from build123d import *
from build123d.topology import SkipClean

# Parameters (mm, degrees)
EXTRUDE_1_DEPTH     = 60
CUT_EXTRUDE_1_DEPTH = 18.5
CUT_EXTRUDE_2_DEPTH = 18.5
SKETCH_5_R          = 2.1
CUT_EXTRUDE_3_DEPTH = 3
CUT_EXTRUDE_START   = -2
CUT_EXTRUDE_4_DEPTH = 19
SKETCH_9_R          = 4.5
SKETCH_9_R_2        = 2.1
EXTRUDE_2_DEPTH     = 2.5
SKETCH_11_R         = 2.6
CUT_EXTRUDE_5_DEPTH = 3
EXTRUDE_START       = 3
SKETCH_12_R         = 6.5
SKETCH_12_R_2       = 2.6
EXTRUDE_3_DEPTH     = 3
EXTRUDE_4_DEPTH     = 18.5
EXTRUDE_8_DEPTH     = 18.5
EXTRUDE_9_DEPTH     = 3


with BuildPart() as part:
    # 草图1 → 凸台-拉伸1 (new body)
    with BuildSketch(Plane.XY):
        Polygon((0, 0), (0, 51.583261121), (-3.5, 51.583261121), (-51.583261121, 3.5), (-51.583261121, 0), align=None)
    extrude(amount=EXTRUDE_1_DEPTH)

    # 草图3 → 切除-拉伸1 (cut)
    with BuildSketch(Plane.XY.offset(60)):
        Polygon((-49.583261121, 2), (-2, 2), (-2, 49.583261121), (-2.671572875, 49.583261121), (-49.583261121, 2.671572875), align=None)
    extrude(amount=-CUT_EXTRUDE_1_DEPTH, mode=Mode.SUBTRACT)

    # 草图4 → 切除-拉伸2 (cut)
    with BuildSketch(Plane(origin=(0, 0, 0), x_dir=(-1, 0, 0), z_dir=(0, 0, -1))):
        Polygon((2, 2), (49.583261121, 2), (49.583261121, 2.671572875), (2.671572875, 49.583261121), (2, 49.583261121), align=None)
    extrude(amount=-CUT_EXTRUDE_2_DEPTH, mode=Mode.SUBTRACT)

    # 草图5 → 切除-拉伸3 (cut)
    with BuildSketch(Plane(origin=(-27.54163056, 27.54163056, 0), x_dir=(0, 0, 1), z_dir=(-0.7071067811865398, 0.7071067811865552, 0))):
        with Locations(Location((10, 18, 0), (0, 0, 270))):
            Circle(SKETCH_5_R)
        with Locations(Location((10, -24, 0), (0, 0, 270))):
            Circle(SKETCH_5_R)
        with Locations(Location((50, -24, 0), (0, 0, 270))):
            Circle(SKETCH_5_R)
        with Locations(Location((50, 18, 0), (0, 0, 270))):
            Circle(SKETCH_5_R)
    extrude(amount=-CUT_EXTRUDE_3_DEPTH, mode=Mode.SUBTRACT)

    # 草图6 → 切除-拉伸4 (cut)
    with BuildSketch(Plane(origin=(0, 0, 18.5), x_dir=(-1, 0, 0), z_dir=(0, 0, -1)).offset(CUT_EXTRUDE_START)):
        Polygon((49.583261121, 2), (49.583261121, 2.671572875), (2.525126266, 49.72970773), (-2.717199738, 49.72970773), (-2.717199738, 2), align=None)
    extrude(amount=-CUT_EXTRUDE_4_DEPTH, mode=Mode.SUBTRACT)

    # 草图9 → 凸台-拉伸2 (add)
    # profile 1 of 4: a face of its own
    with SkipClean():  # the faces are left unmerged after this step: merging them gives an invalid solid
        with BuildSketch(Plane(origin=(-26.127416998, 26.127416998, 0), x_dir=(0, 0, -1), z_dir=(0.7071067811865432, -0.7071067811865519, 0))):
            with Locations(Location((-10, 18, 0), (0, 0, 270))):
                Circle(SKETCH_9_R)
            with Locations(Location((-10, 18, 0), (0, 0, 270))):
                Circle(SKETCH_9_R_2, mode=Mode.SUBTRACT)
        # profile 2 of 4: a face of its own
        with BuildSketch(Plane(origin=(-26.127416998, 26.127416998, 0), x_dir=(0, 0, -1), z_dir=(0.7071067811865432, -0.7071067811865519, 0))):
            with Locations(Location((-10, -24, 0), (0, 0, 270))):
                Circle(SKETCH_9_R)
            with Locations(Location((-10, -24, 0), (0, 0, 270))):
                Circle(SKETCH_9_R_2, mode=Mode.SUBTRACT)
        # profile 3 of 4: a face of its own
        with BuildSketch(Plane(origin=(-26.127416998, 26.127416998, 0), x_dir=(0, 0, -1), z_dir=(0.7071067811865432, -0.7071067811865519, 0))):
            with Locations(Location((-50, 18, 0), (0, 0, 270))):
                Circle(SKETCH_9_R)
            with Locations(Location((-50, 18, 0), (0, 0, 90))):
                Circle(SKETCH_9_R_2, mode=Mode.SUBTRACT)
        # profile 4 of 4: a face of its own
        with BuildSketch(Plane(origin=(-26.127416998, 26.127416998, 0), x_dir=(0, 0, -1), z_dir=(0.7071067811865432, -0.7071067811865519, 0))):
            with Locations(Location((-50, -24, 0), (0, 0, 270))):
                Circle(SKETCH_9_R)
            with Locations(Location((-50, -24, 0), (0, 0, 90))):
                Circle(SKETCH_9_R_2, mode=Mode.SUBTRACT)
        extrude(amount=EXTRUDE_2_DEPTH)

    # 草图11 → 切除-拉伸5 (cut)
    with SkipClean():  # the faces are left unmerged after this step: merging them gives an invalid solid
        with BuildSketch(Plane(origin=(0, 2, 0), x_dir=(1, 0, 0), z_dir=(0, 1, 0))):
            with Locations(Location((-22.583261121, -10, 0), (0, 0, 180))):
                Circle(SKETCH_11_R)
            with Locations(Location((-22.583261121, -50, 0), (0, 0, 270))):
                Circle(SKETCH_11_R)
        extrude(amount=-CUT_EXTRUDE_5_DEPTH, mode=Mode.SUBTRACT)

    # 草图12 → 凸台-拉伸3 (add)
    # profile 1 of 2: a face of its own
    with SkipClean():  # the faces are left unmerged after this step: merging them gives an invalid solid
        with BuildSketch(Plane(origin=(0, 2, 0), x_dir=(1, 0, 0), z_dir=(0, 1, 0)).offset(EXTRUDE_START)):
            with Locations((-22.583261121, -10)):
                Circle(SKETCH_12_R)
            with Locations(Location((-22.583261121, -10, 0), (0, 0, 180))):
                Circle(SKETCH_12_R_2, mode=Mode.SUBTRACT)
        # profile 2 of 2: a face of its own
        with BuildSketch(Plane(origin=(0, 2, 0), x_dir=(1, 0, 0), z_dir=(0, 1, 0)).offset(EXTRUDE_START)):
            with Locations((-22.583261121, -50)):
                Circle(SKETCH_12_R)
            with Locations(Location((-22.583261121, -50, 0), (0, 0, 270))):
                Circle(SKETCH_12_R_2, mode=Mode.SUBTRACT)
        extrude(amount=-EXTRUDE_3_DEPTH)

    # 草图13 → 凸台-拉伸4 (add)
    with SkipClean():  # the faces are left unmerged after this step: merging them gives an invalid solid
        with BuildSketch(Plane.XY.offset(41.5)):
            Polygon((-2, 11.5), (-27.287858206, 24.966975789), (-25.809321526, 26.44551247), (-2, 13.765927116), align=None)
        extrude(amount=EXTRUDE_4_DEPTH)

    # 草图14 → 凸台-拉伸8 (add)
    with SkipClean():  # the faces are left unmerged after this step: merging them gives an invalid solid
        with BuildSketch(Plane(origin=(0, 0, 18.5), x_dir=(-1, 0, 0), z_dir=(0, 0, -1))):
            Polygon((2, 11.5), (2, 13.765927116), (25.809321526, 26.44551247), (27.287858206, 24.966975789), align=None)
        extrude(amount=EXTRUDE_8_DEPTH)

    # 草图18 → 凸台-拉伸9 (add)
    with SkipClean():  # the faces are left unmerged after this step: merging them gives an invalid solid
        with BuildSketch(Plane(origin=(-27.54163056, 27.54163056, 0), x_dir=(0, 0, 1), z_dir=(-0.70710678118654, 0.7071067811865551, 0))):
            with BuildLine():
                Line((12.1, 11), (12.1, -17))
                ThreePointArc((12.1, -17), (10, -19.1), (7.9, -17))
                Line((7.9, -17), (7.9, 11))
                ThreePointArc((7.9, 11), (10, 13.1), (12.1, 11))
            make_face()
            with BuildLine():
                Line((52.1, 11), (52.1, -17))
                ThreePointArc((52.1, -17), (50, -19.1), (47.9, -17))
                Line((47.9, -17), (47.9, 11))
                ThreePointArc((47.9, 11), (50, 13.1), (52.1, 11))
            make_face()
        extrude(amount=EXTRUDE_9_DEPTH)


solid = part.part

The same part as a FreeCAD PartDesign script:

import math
import FreeCAD as App
import Part
import Sketcher

V = App.Vector
Q = App.Units.Quantity


def add_polygon(sketch, points):
    """Adds a closed chain of lines whose ends are joined by coincident constraints."""
    first, n = sketch.GeometryCount, len(points)
    for a, b in zip(points, points[1:] + points[:1]):
        sketch.addGeometry(Part.LineSegment(App.Vector(*a, 0), App.Vector(*b, 0)), False)
    for i in range(n):
        sketch.addConstraint(Sketcher.Constraint("Coincident", first + i, 2, first + (i + 1) % n, 1))

doc = App.newDocument("Part")
body = doc.addObject("PartDesign::Body", "Body")

sketch1 = body.newObject("Sketcher::SketchObject", "Sketch")
sketch1.AttachmentSupport = (doc.getObject("XY_Plane"), [""])
sketch1.MapMode = "FlatFace"
add_polygon(sketch1, [(0, 0), (0, 51.6), (-3.5, 51.6), (-51.6, 3.5), (-51.6, 0)])
sketch1.addConstraint(Sketcher.Constraint("Vertical", 0))
sketch1.addConstraint(Sketcher.Constraint("Horizontal", 1))
sketch1.addConstraint(Sketcher.Constraint("Vertical", 3))
sketch1.addConstraint(Sketcher.Constraint("Horizontal", 4))
sketch1.addConstraint(Sketcher.Constraint("Coincident", 4, 2, -1, 1))
sketch1.addConstraint(Sketcher.Constraint("Equal", 4, 0))
sketch1.addConstraint(Sketcher.Constraint("Equal", 1, 3))
sketch1.addConstraint(Sketcher.Constraint("Distance", 2, 68.0))
sketch1.addConstraint(Sketcher.Constraint("DistanceX", 1, 2, 1, 1, 3.5))
pad1 = body.newObject("PartDesign::Pad", "Pad")
pad1.Profile = sketch1
pad1.Length = 60

sketch2 = body.newObject("Sketcher::SketchObject", "Sketch001")
sketch2.AttachmentSupport = (doc.getObject("XY_Plane"), [""])
sketch2.MapMode = "FlatFace"
sketch2.AttachmentOffset = App.Placement(V(0, 0, 60), App.Rotation())
add_polygon(sketch2, [(-49.6, 2), (-2, 2), (-2, 49.6), (-2.7, 49.6), (-49.6, 2.7)])
sketch2.addConstraint(Sketcher.Constraint("Horizontal", 0))
sketch2.addConstraint(Sketcher.Constraint("Vertical", 1))
sketch2.addConstraint(Sketcher.Constraint("Horizontal", 2))
sketch2.addConstraint(Sketcher.Constraint("Vertical", 4))
sketch2.addConstraint(Sketcher.Constraint("Equal", 0, 1))
sketch2.addConstraint(Sketcher.Constraint("Equal", 2, 4))
sketch2.addConstraint(Sketcher.Constraint("DistanceX", 0, 2, -1, 1, 2.0))
sketch2.addConstraint(Sketcher.Constraint("DistanceY", -1, 1, 0, 2, 2.0))
sketch2.addConstraint(Sketcher.Constraint("DistanceX", 0, 1, 0, 2, 47.583261))
sketch2.addConstraint(Sketcher.Constraint("DistanceX", 2, 2, 2, 1, 0.671573))
pocket1 = body.newObject("PartDesign::Pocket", "Pocket")
pocket1.Profile = sketch2
pocket1.Length = 18.5

sketch3 = body.newObject("Sketcher::SketchObject", "Sketch002")
sketch3.AttachmentSupport = (doc.getObject("XY_Plane"), [""])
sketch3.MapMode = "FlatFace"
add_polygon(sketch3, [(-2, 2), (-49.6, 2), (-49.6, 2.7), (-2.7, 49.6), (-2, 49.6)])
sketch3.addConstraint(Sketcher.Constraint("Horizontal", 0))
sketch3.addConstraint(Sketcher.Constraint("Vertical", 1))
sketch3.addConstraint(Sketcher.Constraint("Horizontal", 3))
sketch3.addConstraint(Sketcher.Constraint("Vertical", 4))
sketch3.addConstraint(Sketcher.Constraint("Equal", 3, 1))
sketch3.addConstraint(Sketcher.Constraint("Equal", 0, 4))
sketch3.addConstraint(Sketcher.Constraint("DistanceY", -1, 1, 0, 2, 2.0))
sketch3.addConstraint(Sketcher.Constraint("DistanceX", 3, 2, -1, 1, 2.0))
sketch3.addConstraint(Sketcher.Constraint("DistanceX", 0, 2, 0, 1, 47.583261))
sketch3.addConstraint(Sketcher.Constraint("DistanceX", 3, 1, 3, 2, 0.671573))
pocket2 = body.newObject("PartDesign::Pocket", "Pocket001")
pocket2.Profile = sketch3
pocket2.Length = 18.5
pocket2.Reversed = True

sketch4 = body.newObject("Sketcher::SketchObject", "Sketch003")
sketch4.Placement = App.Placement(V(-27.541631, 27.541631, 0), App.Rotation(V(0, 0, 1), V(0.707106781, 0.707106781, 0), V(-0.707106781, 0.707106781, 0), "ZXY"))
sketch4.addGeometry(Part.Circle(V(10, 18, 0), V(0, 0, 1), 2.1), False)
sketch4.addGeometry(Part.Circle(V(10, -24, 0), V(0, 0, 1), 2.1), False)
sketch4.addGeometry(Part.Circle(V(50, -24, 0), V(0, 0, 1), 2.1), False)
sketch4.addGeometry(Part.Circle(V(50, 18, 0), V(0, 0, 1), 2.1), False)
sketch4.addConstraint(Sketcher.Constraint("Equal", 0, 1))
sketch4.addConstraint(Sketcher.Constraint("Equal", 1, 2))
sketch4.addConstraint(Sketcher.Constraint("Equal", 2, 3))
sketch4.addConstraint(Sketcher.Constraint("Horizontal", 1, 3, 2, 3))
sketch4.addConstraint(Sketcher.Constraint("Horizontal", 0, 3, 3, 3))
sketch4.addConstraint(Sketcher.Constraint("Vertical", 0, 3, 1, 3))
sketch4.addConstraint(Sketcher.Constraint("Vertical", 2, 3, 3, 3))
sketch4.addConstraint(Sketcher.Constraint("Diameter", 0, 4.2))
sketch4.addConstraint(Sketcher.Constraint("DistanceX", -1, 1, 0, 3, 10.0))
sketch4.addConstraint(Sketcher.Constraint("DistanceY", -1, 1, 0, 3, 18.0))
sketch4.addConstraint(Sketcher.Constraint("DistanceY", 1, 3, -1, 1, 24.0))
sketch4.addConstraint(Sketcher.Constraint("DistanceX", -1, 1, 2, 3, 50.0))
pocket3 = body.newObject("PartDesign::Pocket", "Pocket002")
pocket3.Profile = sketch4
pocket3.Length = 3

sketch5 = body.newObject("Sketcher::SketchObject", "Sketch004")
sketch5.AttachmentSupport = (doc.getObject("XY_Plane"), [""])
sketch5.MapMode = "FlatFace"
sketch5.AttachmentOffset = App.Placement(V(0, 0, 20.5), App.Rotation())
add_polygon(sketch5, [(-49.6, 2), (-49.6, 2.7), (-2.5, 49.7), (2.7, 49.7), (2.7, 2)])
sketch5.addConstraint(Sketcher.Constraint("Vertical", 0))
sketch5.addConstraint(Sketcher.Constraint("Horizontal", 2))
sketch5.addConstraint(Sketcher.Constraint("Vertical", 3))
sketch5.addConstraint(Sketcher.Constraint("Horizontal", 4))
sketch5.addConstraint(Sketcher.Constraint("Angle", 1, Q("45 deg")))
sketch5.addConstraint(Sketcher.Constraint("DistanceY", -1, 1, 3, 2, 2.0))
sketch5.addConstraint(Sketcher.Constraint("DistanceX", 4, 2, 4, 1, 52.300461))
sketch5.addConstraint(Sketcher.Constraint("DistanceX", -1, 1, 2, 2, 2.7172))
sketch5.addConstraint(Sketcher.Constraint("DistanceX", 2, 1, 2, 2, 5.242326))
sketch5.addConstraint(Sketcher.Constraint("DistanceY", 0, 1, 0, 2, 0.671573))
pocket4 = body.newObject("PartDesign::Pocket", "Pocket003")
pocket4.Profile = sketch5
pocket4.Length = 19
pocket4.Reversed = True

sketch6 = body.newObject("Sketcher::SketchObject", "Sketch005")
sketch6.Placement = App.Placement(V(-26.127417, 26.127417, 0), App.Rotation(V(0, 0, -1), V(0.707106781, 0.707106781, 0), V(0.707106781, -0.707106781, 0), "ZXY"))
sketch6.addGeometry(Part.Circle(V(-10, 18, 0), V(0, 0, 1), 4.5), False)
sketch6.addGeometry(Part.Circle(V(-10, 18, 0), V(0, 0, 1), 2.1), False)
sketch6.addGeometry(Part.Circle(V(-10, -24, 0), V(0, 0, 1), 4.5), False)
sketch6.addGeometry(Part.Circle(V(-10, -24, 0), V(0, 0, 1), 2.1), False)
sketch6.addGeometry(Part.Circle(V(-50, 18, 0), V(0, 0, 1), 4.5), False)
sketch6.addGeometry(Part.Circle(V(-50, 18, 0), V(0, 0, 1), 2.1), False)
sketch6.addGeometry(Part.Circle(V(-50, -24, 0), V(0, 0, 1), 4.5), False)
sketch6.addGeometry(Part.Circle(V(-50, -24, 0), V(0, 0, 1), 2.1), False)
sketch6.addConstraint(Sketcher.Constraint("Coincident", 1, 3, 0, 3))
sketch6.addConstraint(Sketcher.Constraint("Coincident", 3, 3, 2, 3))
sketch6.addConstraint(Sketcher.Constraint("Coincident", 5, 3, 4, 3))
sketch6.addConstraint(Sketcher.Constraint("Coincident", 7, 3, 6, 3))
sketch6.addConstraint(Sketcher.Constraint("Equal", 0, 2))
sketch6.addConstraint(Sketcher.Constraint("Equal", 1, 3))
sketch6.addConstraint(Sketcher.Constraint("Equal", 2, 4))
sketch6.addConstraint(Sketcher.Constraint("Equal", 3, 5))
sketch6.addConstraint(Sketcher.Constraint("Equal", 4, 6))
sketch6.addConstraint(Sketcher.Constraint("Equal", 5, 7))
sketch6.addConstraint(Sketcher.Constraint("Horizontal", 1, 3, 4, 3))
sketch6.addConstraint(Sketcher.Constraint("Horizontal", 3, 3, 6, 3))
sketch6.addConstraint(Sketcher.Constraint("Vertical", 1, 3, 2, 3))
sketch6.addConstraint(Sketcher.Constraint("Vertical", 5, 3, 6, 3))
sketch6.addConstraint(Sketcher.Constraint("Diameter", 0, 9.0))
sketch6.addConstraint(Sketcher.Constraint("Diameter", 1, 4.2))
sketch6.addConstraint(Sketcher.Constraint("DistanceX", 0, 3, -1, 1, 10.0))
sketch6.addConstraint(Sketcher.Constraint("DistanceY", -1, 1, 0, 3, 18.0))
sketch6.addConstraint(Sketcher.Constraint("DistanceY", 2, 3, -1, 1, 24.0))
sketch6.addConstraint(Sketcher.Constraint("DistanceX", 4, 3, -1, 1, 50.0))
pad2 = body.newObject("PartDesign::Pad", "Pad001")
pad2.Profile = sketch6
pad2.Length = 2.5

sketch7 = body.newObject("Sketcher::SketchObject", "Sketch006")
sketch7.AttachmentSupport = (doc.getObject("XZ_Plane"), [""])
sketch7.MapMode = "FlatFace"
sketch7.AttachmentOffset = App.Placement(V(0, 0, -2), App.Rotation())
sketch7.addGeometry(Part.Circle(V(-22.6, 10, 0), V(0, 0, 1), 2.6), False)
sketch7.addGeometry(Part.Circle(V(-22.6, 50, 0), V(0, 0, 1), 2.6), False)
sketch7.addConstraint(Sketcher.Constraint("Equal", 0, 1))
sketch7.addConstraint(Sketcher.Constraint("Vertical", 0, 3, 1, 3))
sketch7.addConstraint(Sketcher.Constraint("Diameter", 0, 5.2))
sketch7.addConstraint(Sketcher.Constraint("DistanceY", -1, 1, 0, 3, 10.0))
sketch7.addConstraint(Sketcher.Constraint("DistanceY", -1, 1, 1, 3, 50.0))
sketch7.addConstraint(Sketcher.Constraint("DistanceX", 0, 3, -1, 1, 22.583261))
pocket5 = body.newObject("PartDesign::Pocket", "Pocket004")
pocket5.Profile = sketch7
pocket5.Length = 3
pocket5.Reversed = True

sketch8 = body.newObject("Sketcher::SketchObject", "Sketch007")
sketch8.AttachmentSupport = (doc.getObject("XZ_Plane"), [""])
sketch8.MapMode = "FlatFace"
sketch8.AttachmentOffset = App.Placement(V(0, 0, -5), App.Rotation())
sketch8.addGeometry(Part.Circle(V(-22.6, 10, 0), V(0, 0, 1), 6.5), False)
sketch8.addGeometry(Part.Circle(V(-22.6, 10, 0), V(0, 0, 1), 2.6), False)
sketch8.addGeometry(Part.Circle(V(-22.6, 50, 0), V(0, 0, 1), 6.5), False)
sketch8.addGeometry(Part.Circle(V(-22.6, 50, 0), V(0, 0, 1), 2.6), False)
sketch8.addConstraint(Sketcher.Constraint("Coincident", 1, 3, 0, 3))
sketch8.addConstraint(Sketcher.Constraint("Coincident", 3, 3, 2, 3))
sketch8.addConstraint(Sketcher.Constraint("Equal", 0, 2))
sketch8.addConstraint(Sketcher.Constraint("Equal", 1, 3))
sketch8.addConstraint(Sketcher.Constraint("Vertical", 1, 3, 2, 3))
sketch8.addConstraint(Sketcher.Constraint("Diameter", 0, 13.0))
sketch8.addConstraint(Sketcher.Constraint("Diameter", 1, 5.2))
sketch8.addConstraint(Sketcher.Constraint("DistanceY", -1, 1, 0, 3, 10.0))
sketch8.addConstraint(Sketcher.Constraint("DistanceY", -1, 1, 2, 3, 50.0))
sketch8.addConstraint(Sketcher.Constraint("DistanceX", 0, 3, -1, 1, 22.583261))
pad3 = body.newObject("PartDesign::Pad", "Pad002")
pad3.Profile = sketch8
pad3.Length = 3

sketch9 = body.newObject("Sketcher::SketchObject", "Sketch008")
sketch9.AttachmentSupport = (doc.getObject("XY_Plane"), [""])
sketch9.MapMode = "FlatFace"
sketch9.AttachmentOffset = App.Placement(V(0, 0, 41.5), App.Rotation())
add_polygon(sketch9, [(-27.3, 25), (-2, 11.5), (-2, 13.8), (-25.8, 26.4)])
sketch9.addConstraint(Sketcher.Constraint("Vertical", 1))
sketch9.addConstraint(Sketcher.Constraint("Parallel", 0, 2))
sketch9.addConstraint(Sketcher.Constraint("Angle", 3, Q("-135 deg")))
sketch9.addConstraint(Sketcher.Constraint("DistanceX", 0, 2, -1, 1, 2.0))
sketch9.addConstraint(Sketcher.Constraint("DistanceY", -1, 1, 0, 2, 11.5))
sketch9.addConstraint(Sketcher.Constraint("Distance", 0, 28.650222))
sketch9.addConstraint(Sketcher.Constraint("DistanceY", 1, 1, 1, 2, 2.265927))
sketch9.addConstraint(Sketcher.Constraint("DistanceX", 2, 2, -1, 1, 25.809322))
pad4 = body.newObject("PartDesign::Pad", "Pad003")
pad4.Profile = sketch9
pad4.Length = 18.5

sketch10 = body.newObject("Sketcher::SketchObject", "Sketch009")
sketch10.AttachmentSupport = (doc.getObject("XY_Plane"), [""])
sketch10.MapMode = "FlatFace"
sketch10.AttachmentOffset = App.Placement(V(0, 0, 18.5), App.Rotation())
add_polygon(sketch10, [(-2, 13.8), (-2, 11.5), (-27.3, 25), (-25.8, 26.4)])
sketch10.addConstraint(Sketcher.Constraint("Vertical", 0))
sketch10.addConstraint(Sketcher.Constraint("Parallel", 1, 3))
sketch10.addConstraint(Sketcher.Constraint("Angle", 2, Q("45 deg")))
sketch10.addConstraint(Sketcher.Constraint("DistanceX", 0, 2, -1, 1, 2.0))
sketch10.addConstraint(Sketcher.Constraint("DistanceY", -1, 1, 0, 2, 11.5))
sketch10.addConstraint(Sketcher.Constraint("Distance", 1, 28.650222))
sketch10.addConstraint(Sketcher.Constraint("DistanceY", 0, 2, 0, 1, 2.265927))
sketch10.addConstraint(Sketcher.Constraint("DistanceX", 1, 2, -1, 1, 27.287858))
pad5 = body.newObject("PartDesign::Pad", "Pad004")
pad5.Profile = sketch10
pad5.Length = 18.5
pad5.Reversed = True

sketch11 = body.newObject("Sketcher::SketchObject", "Sketch010")
sketch11.Placement = App.Placement(V(-27.541631, 27.541631, 0), App.Rotation(V(0, 0, 1), V(0.707106781, 0.707106781, 0), V(-0.707106781, 0.707106781, 0), "ZXY"))
sketch11.addGeometry(Part.LineSegment(V(12.1, -17, 0), V(12.1, 11, 0)), False)
sketch11.addGeometry(Part.ArcOfCircle(Part.Circle(V(10, 11, 0), V(0, 0, 1), 2.1), math.radians(0), math.radians(180)), False)
sketch11.addGeometry(Part.LineSegment(V(7.9, 11, 0), V(7.9, -17, 0)), False)
sketch11.addGeometry(Part.ArcOfCircle(Part.Circle(V(10, -17, 0), V(0, 0, 1), 2.1), math.radians(180), math.radians(360)), False)
sketch11.addGeometry(Part.LineSegment(V(52.1, -17, 0), V(52.1, 11, 0)), False)
sketch11.addGeometry(Part.ArcOfCircle(Part.Circle(V(50, 11, 0), V(0, 0, 1), 2.1), math.radians(0), math.radians(180)), False)
sketch11.addGeometry(Part.LineSegment(V(47.9, 11, 0), V(47.9, -17, 0)), False)
sketch11.addGeometry(Part.ArcOfCircle(Part.Circle(V(50, -17, 0), V(0, 0, 1), 2.1), math.radians(180), math.radians(360)), False)
sketch11.addConstraint(Sketcher.Constraint("Tangent", 0, 2, 1, 1))
sketch11.addConstraint(Sketcher.Constraint("Tangent", 1, 2, 2, 1))
sketch11.addConstraint(Sketcher.Constraint("Tangent", 2, 2, 3, 1))
sketch11.addConstraint(Sketcher.Constraint("Tangent", 3, 2, 0, 1))
sketch11.addConstraint(Sketcher.Constraint("Tangent", 4, 2, 5, 1))
sketch11.addConstraint(Sketcher.Constraint("Tangent", 5, 2, 6, 1))
sketch11.addConstraint(Sketcher.Constraint("Tangent", 6, 2, 7, 1))
sketch11.addConstraint(Sketcher.Constraint("Tangent", 7, 2, 4, 1))
sketch11.addConstraint(Sketcher.Constraint("Vertical", 0))
sketch11.addConstraint(Sketcher.Constraint("Vertical", 2))
sketch11.addConstraint(Sketcher.Constraint("Vertical", 4))
sketch11.addConstraint(Sketcher.Constraint("Vertical", 6))
sketch11.addConstraint(Sketcher.Constraint("Equal", 3, 5))
sketch11.addConstraint(Sketcher.Constraint("Horizontal", 1, 3, 5, 3))
sketch11.addConstraint(Sketcher.Constraint("Horizontal", 3, 3, 7, 3))
sketch11.addConstraint(Sketcher.Constraint("Radius", 1, 2.1))
sketch11.addConstraint(Sketcher.Constraint("DistanceY", 0, 1, 0, 2, 28.0))
sketch11.addConstraint(Sketcher.Constraint("DistanceX", -1, 1, 1, 3, 10.0))
sketch11.addConstraint(Sketcher.Constraint("DistanceY", -1, 1, 1, 3, 11.0))
sketch11.addConstraint(Sketcher.Constraint("DistanceX", -1, 1, 5, 3, 50.0))
pad6 = body.newObject("PartDesign::Pad", "Pad005")
pad6.Profile = sketch11
pad6.Length = 3

doc.recompute()
